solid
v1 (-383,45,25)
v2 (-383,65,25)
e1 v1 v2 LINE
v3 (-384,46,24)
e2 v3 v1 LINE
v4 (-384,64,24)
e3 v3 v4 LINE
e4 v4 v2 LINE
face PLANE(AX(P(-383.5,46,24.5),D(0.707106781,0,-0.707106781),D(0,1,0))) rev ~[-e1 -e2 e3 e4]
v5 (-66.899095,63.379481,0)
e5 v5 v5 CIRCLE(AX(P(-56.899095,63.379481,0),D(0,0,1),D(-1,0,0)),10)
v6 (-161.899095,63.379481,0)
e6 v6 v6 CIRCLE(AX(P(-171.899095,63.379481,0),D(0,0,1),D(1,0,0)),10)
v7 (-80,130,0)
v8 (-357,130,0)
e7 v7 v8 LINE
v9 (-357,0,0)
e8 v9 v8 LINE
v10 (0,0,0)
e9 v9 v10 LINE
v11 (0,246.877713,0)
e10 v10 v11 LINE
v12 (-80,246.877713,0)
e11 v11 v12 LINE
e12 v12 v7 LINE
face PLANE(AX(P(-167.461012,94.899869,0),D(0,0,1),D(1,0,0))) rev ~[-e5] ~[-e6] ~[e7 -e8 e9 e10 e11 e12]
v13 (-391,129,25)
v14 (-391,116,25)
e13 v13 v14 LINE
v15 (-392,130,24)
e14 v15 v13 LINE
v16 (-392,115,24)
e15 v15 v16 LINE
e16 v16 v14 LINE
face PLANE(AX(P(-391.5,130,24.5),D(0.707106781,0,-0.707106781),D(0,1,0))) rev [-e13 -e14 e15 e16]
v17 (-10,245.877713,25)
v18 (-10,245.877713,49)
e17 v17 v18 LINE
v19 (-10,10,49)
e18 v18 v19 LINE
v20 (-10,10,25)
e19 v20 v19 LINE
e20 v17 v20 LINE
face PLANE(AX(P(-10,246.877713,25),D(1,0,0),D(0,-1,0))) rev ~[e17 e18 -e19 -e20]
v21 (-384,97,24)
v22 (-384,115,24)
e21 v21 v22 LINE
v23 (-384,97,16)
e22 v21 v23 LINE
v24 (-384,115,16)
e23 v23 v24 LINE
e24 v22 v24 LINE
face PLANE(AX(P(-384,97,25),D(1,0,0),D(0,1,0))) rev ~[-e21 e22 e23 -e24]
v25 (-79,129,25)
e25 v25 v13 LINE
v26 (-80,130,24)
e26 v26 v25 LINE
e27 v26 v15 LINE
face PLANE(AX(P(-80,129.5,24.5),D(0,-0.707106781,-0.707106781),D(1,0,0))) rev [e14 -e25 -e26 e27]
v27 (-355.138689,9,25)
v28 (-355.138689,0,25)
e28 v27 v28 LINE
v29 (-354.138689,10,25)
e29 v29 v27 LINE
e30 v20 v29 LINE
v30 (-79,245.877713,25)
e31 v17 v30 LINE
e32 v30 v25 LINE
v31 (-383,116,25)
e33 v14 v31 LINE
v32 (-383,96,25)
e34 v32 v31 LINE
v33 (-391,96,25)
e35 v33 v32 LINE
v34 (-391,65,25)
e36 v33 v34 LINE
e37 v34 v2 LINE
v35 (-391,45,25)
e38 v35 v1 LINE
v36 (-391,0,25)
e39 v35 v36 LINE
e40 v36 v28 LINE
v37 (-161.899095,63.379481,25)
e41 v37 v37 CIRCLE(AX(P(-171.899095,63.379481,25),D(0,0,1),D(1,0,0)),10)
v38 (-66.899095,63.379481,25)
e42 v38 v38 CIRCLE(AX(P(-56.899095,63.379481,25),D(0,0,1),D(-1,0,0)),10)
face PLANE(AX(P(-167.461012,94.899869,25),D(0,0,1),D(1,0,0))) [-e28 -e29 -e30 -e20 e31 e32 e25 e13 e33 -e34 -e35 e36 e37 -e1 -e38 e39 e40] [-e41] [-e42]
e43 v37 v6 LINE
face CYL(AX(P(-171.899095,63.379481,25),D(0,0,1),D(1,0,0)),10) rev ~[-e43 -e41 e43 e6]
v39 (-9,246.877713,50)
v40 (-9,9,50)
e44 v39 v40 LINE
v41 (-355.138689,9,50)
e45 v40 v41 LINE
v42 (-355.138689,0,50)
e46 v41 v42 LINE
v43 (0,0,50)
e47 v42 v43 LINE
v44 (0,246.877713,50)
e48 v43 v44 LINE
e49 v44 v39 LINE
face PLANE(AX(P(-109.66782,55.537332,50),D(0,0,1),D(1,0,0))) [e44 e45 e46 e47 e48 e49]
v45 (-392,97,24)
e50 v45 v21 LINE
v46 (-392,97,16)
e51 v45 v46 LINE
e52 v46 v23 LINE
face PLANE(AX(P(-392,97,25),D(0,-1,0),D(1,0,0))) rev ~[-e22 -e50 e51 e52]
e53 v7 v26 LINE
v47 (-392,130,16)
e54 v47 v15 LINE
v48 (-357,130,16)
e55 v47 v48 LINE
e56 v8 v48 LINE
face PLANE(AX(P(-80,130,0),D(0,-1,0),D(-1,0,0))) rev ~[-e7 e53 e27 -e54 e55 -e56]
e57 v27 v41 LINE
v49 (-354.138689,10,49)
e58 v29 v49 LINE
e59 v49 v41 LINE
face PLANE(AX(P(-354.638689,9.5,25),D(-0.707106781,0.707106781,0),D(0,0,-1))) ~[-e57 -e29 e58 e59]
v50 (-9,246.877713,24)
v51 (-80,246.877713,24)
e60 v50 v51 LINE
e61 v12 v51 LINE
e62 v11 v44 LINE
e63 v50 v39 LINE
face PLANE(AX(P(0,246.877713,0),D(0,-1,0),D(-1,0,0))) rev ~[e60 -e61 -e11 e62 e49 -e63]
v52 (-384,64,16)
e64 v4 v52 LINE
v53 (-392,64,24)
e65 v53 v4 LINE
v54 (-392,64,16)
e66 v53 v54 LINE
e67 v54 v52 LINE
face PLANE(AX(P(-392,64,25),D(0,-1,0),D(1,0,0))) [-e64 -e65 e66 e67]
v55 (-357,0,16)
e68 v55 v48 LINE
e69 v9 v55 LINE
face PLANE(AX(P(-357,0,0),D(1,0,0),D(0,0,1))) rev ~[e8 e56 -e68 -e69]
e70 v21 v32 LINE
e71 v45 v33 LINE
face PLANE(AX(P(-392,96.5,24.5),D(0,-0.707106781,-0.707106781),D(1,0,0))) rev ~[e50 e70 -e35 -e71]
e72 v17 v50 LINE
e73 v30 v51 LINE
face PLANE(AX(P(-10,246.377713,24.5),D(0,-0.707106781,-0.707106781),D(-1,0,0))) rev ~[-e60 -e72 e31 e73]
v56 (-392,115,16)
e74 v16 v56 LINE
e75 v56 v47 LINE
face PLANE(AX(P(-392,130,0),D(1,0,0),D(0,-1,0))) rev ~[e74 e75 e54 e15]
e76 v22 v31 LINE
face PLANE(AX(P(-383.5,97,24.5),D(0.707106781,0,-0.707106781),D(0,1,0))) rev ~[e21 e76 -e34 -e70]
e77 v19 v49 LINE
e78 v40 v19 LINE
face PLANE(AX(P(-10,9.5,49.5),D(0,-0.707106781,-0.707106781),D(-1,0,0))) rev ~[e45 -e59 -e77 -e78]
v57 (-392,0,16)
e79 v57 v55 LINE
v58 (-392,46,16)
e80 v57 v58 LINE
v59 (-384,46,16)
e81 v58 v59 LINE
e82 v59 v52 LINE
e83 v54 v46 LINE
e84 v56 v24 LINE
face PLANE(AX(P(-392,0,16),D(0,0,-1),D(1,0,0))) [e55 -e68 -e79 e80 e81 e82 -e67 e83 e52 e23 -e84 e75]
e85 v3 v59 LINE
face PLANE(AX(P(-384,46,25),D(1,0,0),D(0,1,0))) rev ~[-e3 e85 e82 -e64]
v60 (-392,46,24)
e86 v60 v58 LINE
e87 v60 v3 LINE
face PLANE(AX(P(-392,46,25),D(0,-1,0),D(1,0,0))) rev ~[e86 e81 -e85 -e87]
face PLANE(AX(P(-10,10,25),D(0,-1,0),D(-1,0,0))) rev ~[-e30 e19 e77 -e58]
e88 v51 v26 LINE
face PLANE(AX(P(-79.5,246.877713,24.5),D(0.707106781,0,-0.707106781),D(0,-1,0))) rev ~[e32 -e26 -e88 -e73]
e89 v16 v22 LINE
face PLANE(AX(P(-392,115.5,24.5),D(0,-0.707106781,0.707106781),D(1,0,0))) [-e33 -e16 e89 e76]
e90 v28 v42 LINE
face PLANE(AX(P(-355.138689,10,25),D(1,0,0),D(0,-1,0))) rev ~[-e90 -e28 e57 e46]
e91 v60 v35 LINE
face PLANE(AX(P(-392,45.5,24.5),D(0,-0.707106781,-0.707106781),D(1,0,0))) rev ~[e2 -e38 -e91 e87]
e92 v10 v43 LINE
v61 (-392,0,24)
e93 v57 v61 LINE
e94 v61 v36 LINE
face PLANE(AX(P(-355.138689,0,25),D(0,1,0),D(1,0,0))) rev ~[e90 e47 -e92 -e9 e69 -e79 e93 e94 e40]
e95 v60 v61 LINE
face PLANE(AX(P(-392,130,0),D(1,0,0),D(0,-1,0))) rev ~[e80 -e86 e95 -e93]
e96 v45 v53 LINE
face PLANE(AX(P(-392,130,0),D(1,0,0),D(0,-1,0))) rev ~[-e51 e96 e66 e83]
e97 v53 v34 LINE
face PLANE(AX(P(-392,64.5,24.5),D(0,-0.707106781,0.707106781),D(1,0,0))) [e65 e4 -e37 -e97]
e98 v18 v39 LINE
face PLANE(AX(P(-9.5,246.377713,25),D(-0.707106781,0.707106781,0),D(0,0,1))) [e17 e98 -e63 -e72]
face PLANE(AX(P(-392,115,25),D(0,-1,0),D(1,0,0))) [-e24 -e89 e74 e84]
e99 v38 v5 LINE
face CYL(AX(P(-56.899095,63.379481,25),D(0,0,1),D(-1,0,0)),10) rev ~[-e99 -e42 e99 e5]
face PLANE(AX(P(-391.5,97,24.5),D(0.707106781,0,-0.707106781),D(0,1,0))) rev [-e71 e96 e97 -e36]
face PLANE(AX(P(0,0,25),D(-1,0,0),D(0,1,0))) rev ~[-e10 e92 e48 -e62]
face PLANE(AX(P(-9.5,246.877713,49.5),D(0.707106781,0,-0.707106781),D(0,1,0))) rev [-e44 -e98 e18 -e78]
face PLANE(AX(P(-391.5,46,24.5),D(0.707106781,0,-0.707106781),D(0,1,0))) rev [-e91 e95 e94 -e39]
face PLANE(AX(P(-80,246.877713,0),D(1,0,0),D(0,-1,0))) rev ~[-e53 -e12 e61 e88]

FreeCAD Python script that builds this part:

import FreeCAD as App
import Part
import Sketcher

V = App.Vector


def edges_at(feature, points):
    """Names of the edges that pass closest to the given points."""
    edges = feature.Shape.Edges
    near = lambda p: min(range(len(edges)), key=lambda i: edges[i].distToShape(Part.Vertex(*p))[0])
    return sorted({f"Edge{near(p) + 1}" for p in points})


def add_polygon(sketch, points):
    """Adds a closed chain of lines whose ends are joined by coincident constraints."""
    first, n = sketch.GeometryCount, len(points)
    for a, b in zip(points, points[1:] + points[:1]):
        sketch.addGeometry(Part.LineSegment(App.Vector(*a, 0), App.Vector(*b, 0)), False)
    for i in range(n):
        sketch.addConstraint(Sketcher.Constraint("Coincident", first + i, 2, first + (i + 1) % n, 1))

doc = App.newDocument("Part")
params = doc.addObject("Spreadsheet::Sheet", "Params")
for row, (alias, value) in enumerate([
    ("sketch1_width", "392 mm"),
    ("sketch1_width2", "80 mm"),
    ("sketch1_height", "130 mm"),
    ("pad1_length", "25 mm"),
    ("sketch2_width", "8 mm"),
    ("sketch2_height", "18 mm"),
    ("sketch3_width", "35 mm"),
    ("sketch3_height", "16 mm"),
    ("sketch4_width", "10 mm"),
    ("pad2_length", "25 mm"),
    ("chamfer_size", "1 mm"),
    ("chamfer2_size", "1 mm"),
    ("chamfer3_size", "1 mm"),
    ("chamfer4_size", "1 mm"),
    ("chamfer5_size", "1 mm"),
    ("sketch5_diameter", "20 mm"),
], start=1):
    params.set(f"A{row}", alias)
    params.set(f"B{row}", "=" + value)
    params.setAlias(f"B{row}", alias)

body = doc.addObject("PartDesign::Body", "Body")

sketch1 = body.newObject("Sketcher::SketchObject", "Sketch")
sketch1.AttachmentSupport = (doc.getObject("XY_Plane"), [""])
sketch1.MapMode = "FlatFace"
add_polygon(sketch1, [(-392, 0), (0, 0), (0, 246.877713), (-80, 246.877713), (-80, 130), (-392, 130)])
sketch1.addConstraint(Sketcher.Constraint("Horizontal", 0))
sketch1.addConstraint(Sketcher.Constraint("Vertical", 1))
sketch1.addConstraint(Sketcher.Constraint("Horizontal", 2))
sketch1.addConstraint(Sketcher.Constraint("Vertical", 3))
sketch1.addConstraint(Sketcher.Constraint("Horizontal", 4))
sketch1.addConstraint(Sketcher.Constraint("Vertical", 5))
sketch1.addConstraint(Sketcher.Constraint("Coincident", 0, 2, -1, 1))
sketch1.addConstraint(Sketcher.Constraint("DistanceX", 0, 1, 0, 2, 392.0))
sketch1.addConstraint(Sketcher.Constraint("DistanceX", 2, 2, 2, 1, 80.0))
sketch1.addConstraint(Sketcher.Constraint("DistanceY", 5, 2, 5, 1, 130.0))
sketch1.addConstraint(Sketcher.Constraint("DistanceY", 1, 1, 1, 2, 246.877713))
sketch1.setExpression("Constraints[13]", "Params.sketch1_width")
sketch1.setExpression("Constraints[14]", "Params.sketch1_width2")
sketch1.setExpression("Constraints[15]", "Params.sketch1_height")
pad1 = body.newObject("PartDesign::Pad", "Pad")
pad1.Profile = sketch1
pad1.setExpression("Length", "Params.pad1_length")

sketch2 = body.newObject("Sketcher::SketchObject", "Sketch001")
sketch2.AttachmentSupport = (doc.getObject("XY_Plane"), [""])
sketch2.MapMode = "FlatFace"
sketch2.AttachmentOffset = App.Placement(V(0, 0, 25), App.Rotation())
add_polygon(sketch2, [(-392, 115), (-392, 97), (-384, 97), (-384, 115)])
add_polygon(sketch2, [(-392, 64), (-392, 46), (-384, 46), (-384, 64)])
sketch2.addConstraint(Sketcher.Constraint("Vertical", 0))
sketch2.addConstraint(Sketcher.Constraint("Horizontal", 1))
sketch2.addConstraint(Sketcher.Constraint("Vertical", 2))
sketch2.addConstraint(Sketcher.Constraint("Horizontal", 3))
sketch2.addConstraint(Sketcher.Constraint("Vertical", 4))
sketch2.addConstraint(Sketcher.Constraint("Horizontal", 5))
sketch2.addConstraint(Sketcher.Constraint("Vertical", 6))
sketch2.addConstraint(Sketcher.Constraint("Horizontal", 7))
sketch2.addConstraint(Sketcher.Constraint("Vertical", 3, 2, 4, 2))
sketch2.addConstraint(Sketcher.Constraint("Vertical", 2, 2, 5, 2))
sketch2.addConstraint(Sketcher.Constraint("Equal", 2, 4))
sketch2.addConstraint(Sketcher.Constraint("DistanceX", 1, 1, 1, 2, 8.0))
sketch2.addConstraint(Sketcher.Constraint("DistanceY", 0, 2, 0, 1, 18.0))
sketch2.addConstraint(Sketcher.Constraint("DistanceX", 0, 2, -1, 1, 392.0))
sketch2.addConstraint(Sketcher.Constraint("DistanceY", -1, 1, 0, 2, 97.0))
sketch2.addConstraint(Sketcher.Constraint("DistanceY", -1, 1, 4, 2, 46.0))
sketch2.setExpression("Constraints[19]", "Params.sketch2_width")
sketch2.setExpression("Constraints[20]", "Params.sketch2_height")
pocket1 = body.newObject("PartDesign::Pocket", "Pocket")
pocket1.Profile = sketch2
pocket1.Type = "ThroughAll"

sketch3 = body.newObject("Sketcher::SketchObject", "Sketch002")
sketch3.AttachmentSupport = (doc.getObject("XZ_Plane"), [""])
sketch3.MapMode = "FlatFace"
add_polygon(sketch3, [(-392, 16), (-392, 0), (-357, 0), (-357, 16)])
sketch3.addConstraint(Sketcher.Constraint("Vertical", 0))
sketch3.addConstraint(Sketcher.Constraint("Horizontal", 1))
sketch3.addConstraint(Sketcher.Constraint("Vertical", 2))
sketch3.addConstraint(Sketcher.Constraint("Horizontal", 3))
sketch3.addConstraint(Sketcher.Constraint("PointOnObject", 0, 2, -1))
sketch3.addConstraint(Sketcher.Constraint("DistanceX", 1, 1, 1, 2, 35.0))
sketch3.addConstraint(Sketcher.Constraint("DistanceY", 0, 2, 0, 1, 16.0))
sketch3.addConstraint(Sketcher.Constraint("DistanceX", 0, 2, -1, 1, 392.0))
sketch3.setExpression("Constraints[9]", "Params.sketch3_width")
sketch3.setExpression("Constraints[10]", "Params.sketch3_height")
pocket2 = body.newObject("PartDesign::Pocket", "Pocket001")
pocket2.Profile = sketch3
pocket2.Type = "ThroughAll"

sketch4 = body.newObject("Sketcher::SketchObject", "Sketch003")
sketch4.AttachmentSupport = (doc.getObject("XY_Plane"), [""])
sketch4.MapMode = "FlatFace"
sketch4.AttachmentOffset = App.Placement(V(0, 0, 25), App.Rotation())
add_polygon(sketch4, [(-355.138689, 10), (-355.138689, 0), (0, 0), (0, 246.877713), (-10, 246.877713), (-10, 10)])
sketch4.addConstraint(Sketcher.Constraint("Vertical", 0))
sketch4.addConstraint(Sketcher.Constraint("Horizontal", 1))
sketch4.addConstraint(Sketcher.Constraint("Vertical", 2))
sketch4.addConstraint(Sketcher.Constraint("Horizontal", 3))
sketch4.addConstraint(Sketcher.Constraint("Vertical", 4))
sketch4.addConstraint(Sketcher.Constraint("Horizontal", 5))
sketch4.addConstraint(Sketcher.Constraint("Coincident", 1, 2, -1, 1))
sketch4.addConstraint(Sketcher.Constraint("Equal", 3, 0))
sketch4.addConstraint(Sketcher.Constraint("DistanceX", 3, 2, 3, 1, 10.0))
sketch4.addConstraint(Sketcher.Constraint("DistanceX", 1, 1, 1, 2, 355.138689))
sketch4.addConstraint(Sketcher.Constraint("DistanceY", 2, 1, 2, 2, 246.877713))
sketch4.setExpression("Constraints[14]", "Params.sketch4_width")
pad2 = body.newObject("PartDesign::Pad", "Pad001")
pad2.Profile = sketch4
pad2.setExpression("Length", "Params.pad2_length")
doc.recompute()

chamfer = body.newObject("PartDesign::Chamfer", "Chamfer")
chamfer.Base = (pad2, edges_at(pad2, [
    (-392, 23, 25),
    (-384, 55, 25),
    (-392, 80.5, 25),
    (-384, 106, 25),
    (-392, 122.5, 25),
    (-388, 64, 25),
    (-388, 46, 25),
    (-388, 115, 25),
    (-388, 97, 25),
]))
chamfer.setExpression("Size", "Params.chamfer_size")
doc.recompute()

chamfer2 = body.newObject("PartDesign::Chamfer", "Chamfer001")
chamfer2.Base = (chamfer, edges_at(chamfer, [(-235.5, 130, 25), (-80, 188.439, 25)]))
chamfer2.setExpression("Size", "Params.chamfer2_size")
doc.recompute()

chamfer3 = body.newObject("PartDesign::Chamfer", "Chamfer002")
chamfer3.Base = (chamfer2, edges_at(chamfer2, [(-182.569, 10, 50), (-10, 128.439, 50)]))
chamfer3.setExpression("Size", "Params.chamfer3_size")
doc.recompute()

chamfer4 = body.newObject("PartDesign::Chamfer", "Chamfer003")
chamfer4.Base = (chamfer3, edges_at(chamfer3, [(-355.139, 10, 37)]))
chamfer4.setExpression("Size", "Params.chamfer4_size")
doc.recompute()

chamfer5 = body.newObject("PartDesign::Chamfer", "Chamfer004")
chamfer5.Base = (chamfer4, edges_at(chamfer4, [(-44.5, 246.878, 25), (-10, 246.878, 37)]))
chamfer5.setExpression("Size", "Params.chamfer5_size")

sketch5 = body.newObject("Sketcher::SketchObject", "Sketch004")
sketch5.AttachmentSupport = (doc.getObject("XY_Plane"), [""])
sketch5.MapMode = "FlatFace"
sketch5.AttachmentOffset = App.Placement(V(0, 0, 25), App.Rotation())
sketch5.addGeometry(Part.Circle(V(-56.899095, 63.379481, 0), V(0, 0, 1), 10), False)
sketch5.addGeometry(Part.Circle(V(-171.899095, 63.379481, 0), V(0, 0, 1), 10), False)
sketch5.addConstraint(Sketcher.Constraint("Equal", 0, 1))
sketch5.addConstraint(Sketcher.Constraint("Horizontal", 0, 3, 1, 3))
sketch5.addConstraint(Sketcher.Constraint("Diameter", 0, 20.0))
sketch5.addConstraint(Sketcher.Constraint("DistanceX", 1, 3, 0, 3, 115.0))
sketch5.addConstraint(Sketcher.Constraint("DistanceY", -1, 1, 0, 3, 63.379481))
sketch5.addConstraint(Sketcher.Constraint("DistanceX", 0, 3, -1, 1, 56.899095))
sketch5.setExpression("Constraints[2]", "Params.sketch5_diameter")
pocket3 = body.newObject("PartDesign::Pocket", "Pocket002")
pocket3.Profile = sketch5
pocket3.Type = "ThroughAll"

doc.recompute()
